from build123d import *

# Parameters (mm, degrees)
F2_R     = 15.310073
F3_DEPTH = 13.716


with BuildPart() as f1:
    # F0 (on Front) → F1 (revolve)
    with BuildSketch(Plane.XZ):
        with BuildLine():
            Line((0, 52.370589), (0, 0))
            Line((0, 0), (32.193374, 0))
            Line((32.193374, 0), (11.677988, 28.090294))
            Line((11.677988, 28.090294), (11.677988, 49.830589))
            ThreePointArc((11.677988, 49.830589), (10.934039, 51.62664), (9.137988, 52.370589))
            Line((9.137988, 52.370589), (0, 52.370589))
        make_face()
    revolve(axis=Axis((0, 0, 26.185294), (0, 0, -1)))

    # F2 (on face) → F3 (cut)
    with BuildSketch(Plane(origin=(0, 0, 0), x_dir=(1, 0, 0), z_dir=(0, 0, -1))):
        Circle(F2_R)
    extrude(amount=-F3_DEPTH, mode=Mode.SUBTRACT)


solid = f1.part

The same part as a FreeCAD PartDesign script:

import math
import FreeCAD as App
import Part
import Sketcher

V = App.Vector
Q = App.Units.Quantity

doc = App.newDocument("Part")
body = doc.addObject("PartDesign::Body", "Body")

sketch1 = body.newObject("Sketcher::SketchObject", "Sketch")
sketch1.AttachmentSupport = (doc.getObject("XZ_Plane"), [""])
sketch1.MapMode = "FlatFace"
sketch1.addGeometry([
    Part.LineSegment(V(0, 52.4, 0), V(0, 0, 0)),
    Part.LineSegment(V(0, 0, 0), V(32.2, 0, 0)),
    Part.LineSegment(V(32.2, 0, 0), V(11.7, 28.1, 0)),
    Part.LineSegment(V(11.7, 28.1, 0), V(11.7, 49.8, 0)),
    Part.ArcOfCircle(Part.Circle(V(9.1, 49.8, 0), V(0, 0, 1), 2.5), math.radians(0), math.radians(90)),
    Part.LineSegment(V(9.1, 52.4, 0), V(0, 52.4, 0)),
], False)
sketch1.addConstraint([
    Sketcher.Constraint("Coincident", 0, 2, 1, 1),
    Sketcher.Constraint("Coincident", 1, 2, 2, 1),
    Sketcher.Constraint("Coincident", 2, 2, 3, 1),
    Sketcher.Constraint("Tangent", 3, 2, 4, 1),
    Sketcher.Constraint("Tangent", 4, 2, 5, 1),
    Sketcher.Constraint("Coincident", 5, 2, 0, 1),
    Sketcher.Constraint("Vertical", 0),
    Sketcher.Constraint("Horizontal", 1),
    Sketcher.Constraint("Vertical", 3),
    Sketcher.Constraint("Horizontal", 5),
    Sketcher.Constraint("Coincident", 0, 2, -1, 1),
    Sketcher.Constraint("Radius", 4, Q("0.1 in")),
    Sketcher.Constraint("DistanceY", 0, 2, 0, 1, Q("52.370589 mm")),
    Sketcher.Constraint("DistanceX", 1, 1, 1, 2, Q("32.193374 mm")),
    Sketcher.Constraint("DistanceX", 5, 2, 5, 1, Q("9.137988 mm")),
    Sketcher.Constraint("DistanceY", 3, 1, 3, 2, Q("21.740295 mm")),
])
revolution = body.newObject("PartDesign::Revolution", "Revolution")
revolution.Profile = sketch1
revolution.ReferenceAxis = (sketch1, ["V_Axis"])
revolution.Angle = 360

sketch2 = body.newObject("Sketcher::SketchObject", "Sketch001")
sketch2.AttachmentSupport = (doc.getObject("XY_Plane"), [""])
sketch2.MapMode = "FlatFace"
sketch2.addGeometry(Part.Circle(V(0, 0, 0), V(0, 0, 1), 15), False)
sketch2.addConstraint([
    Sketcher.Constraint("Coincident", 0, 3, -1, 1),
    Sketcher.Constraint("Diameter", 0, Q("30.620146 mm")),
])
pocket1 = body.newObject("PartDesign::Pocket", "Pocket")
pocket1.Profile = sketch2
pocket1.Length = Q("0.54 in")
pocket1.Reversed = True

doc.recompute()
